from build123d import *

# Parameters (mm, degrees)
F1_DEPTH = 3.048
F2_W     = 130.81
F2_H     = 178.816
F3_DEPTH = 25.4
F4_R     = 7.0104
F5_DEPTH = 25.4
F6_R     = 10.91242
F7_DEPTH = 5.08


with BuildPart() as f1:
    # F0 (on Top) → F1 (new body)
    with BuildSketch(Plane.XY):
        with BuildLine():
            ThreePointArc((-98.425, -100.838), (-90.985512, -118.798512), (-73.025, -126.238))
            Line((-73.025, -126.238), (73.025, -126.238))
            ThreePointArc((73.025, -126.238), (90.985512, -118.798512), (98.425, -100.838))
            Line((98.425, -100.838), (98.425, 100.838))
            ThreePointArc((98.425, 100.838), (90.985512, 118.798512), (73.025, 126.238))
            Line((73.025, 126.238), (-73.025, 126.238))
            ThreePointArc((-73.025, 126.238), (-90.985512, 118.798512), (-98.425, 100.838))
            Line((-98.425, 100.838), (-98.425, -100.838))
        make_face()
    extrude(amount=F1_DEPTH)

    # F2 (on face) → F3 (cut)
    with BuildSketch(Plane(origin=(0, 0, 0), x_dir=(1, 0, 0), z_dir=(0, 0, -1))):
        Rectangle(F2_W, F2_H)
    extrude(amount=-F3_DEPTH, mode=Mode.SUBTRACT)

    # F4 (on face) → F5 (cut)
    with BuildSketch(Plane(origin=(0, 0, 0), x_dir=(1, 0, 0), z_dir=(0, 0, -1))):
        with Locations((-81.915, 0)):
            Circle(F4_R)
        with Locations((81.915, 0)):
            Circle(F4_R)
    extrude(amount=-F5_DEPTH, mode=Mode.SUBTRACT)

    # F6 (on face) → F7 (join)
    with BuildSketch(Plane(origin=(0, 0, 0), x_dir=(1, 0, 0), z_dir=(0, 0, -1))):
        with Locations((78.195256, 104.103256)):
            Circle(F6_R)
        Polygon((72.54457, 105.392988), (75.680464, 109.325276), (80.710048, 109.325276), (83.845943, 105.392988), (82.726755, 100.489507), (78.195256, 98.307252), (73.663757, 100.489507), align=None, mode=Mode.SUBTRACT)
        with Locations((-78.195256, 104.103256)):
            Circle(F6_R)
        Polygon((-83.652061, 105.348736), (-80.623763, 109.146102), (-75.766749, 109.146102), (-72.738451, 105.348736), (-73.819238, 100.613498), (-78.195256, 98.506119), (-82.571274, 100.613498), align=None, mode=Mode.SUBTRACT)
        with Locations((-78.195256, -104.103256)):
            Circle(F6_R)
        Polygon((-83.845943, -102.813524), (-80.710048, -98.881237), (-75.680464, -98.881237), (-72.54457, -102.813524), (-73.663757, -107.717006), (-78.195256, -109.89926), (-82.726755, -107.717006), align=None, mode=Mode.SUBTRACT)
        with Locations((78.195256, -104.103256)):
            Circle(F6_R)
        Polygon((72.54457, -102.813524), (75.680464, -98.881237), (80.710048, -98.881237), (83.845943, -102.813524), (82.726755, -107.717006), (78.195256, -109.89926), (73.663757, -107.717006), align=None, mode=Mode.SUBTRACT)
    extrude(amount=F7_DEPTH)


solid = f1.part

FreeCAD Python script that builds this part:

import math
import FreeCAD as App
import Part
import Sketcher
from FreeCAD import Vector
Q = App.Units.Quantity


def add_polygon(sketch, points):
    """Adds a closed chain of lines whose ends are joined by coincident constraints."""
    first, n = sketch.GeometryCount, len(points)
    for a, b in zip(points, points[1:] + points[:1]):
        sketch.addGeometry(Part.LineSegment(App.Vector(*a, 0), App.Vector(*b, 0)), False)
    for i in range(n):
        sketch.addConstraint(Sketcher.Constraint("Coincident", first + i, 2, first + (i + 1) % n, 1))

doc = App.newDocument("Part")
params = doc.addObject("Spreadsheet::Sheet", "Params")
for row, (alias, value) in enumerate([
    ("sketch1_radius", "1 in"),
    ("sketch1_width", "5.75 in"),
    ("sketch1_height", "7.94 in"),
    ("pad1_length", "0.12 in"),
    ("sketch2_width", "5.15 in"),
    ("sketch2_height", "7.04 in"),
    ("pocket1_length", "1 in"),
    ("sketch3_diameter", "0.552 in"),
    ("pocket2_length", "1 in"),
    ("pad2_length", "0.2 in"),
], start=1):
    params.set(f"A{row}", alias)
    params.set(f"B{row}", "=" + value)
    params.setAlias(f"B{row}", alias)

body = doc.addObject("PartDesign::Body", "Body")

sketch1 = body.newObject("Sketcher::SketchObject", "Sketch")
sketch1.AttachmentSupport = (doc.getObject("XY_Plane"), [""])
sketch1.MapMode = "FlatFace"
sketch1.addGeometry(Part.ArcOfCircle(Part.Circle(Vector(-73, -101, 0), Vector(0, 0, 1), 25), math.radians(-180), math.radians(-90)), False)
sketch1.addGeometry(Part.LineSegment(Vector(-73, -126, 0), Vector(73, -126, 0)), False)
sketch1.addGeometry(Part.ArcOfCircle(Part.Circle(Vector(73, -101, 0), Vector(0, 0, 1), 25), math.radians(-90), math.radians(0)), False)
sketch1.addGeometry(Part.LineSegment(Vector(98, -101, 0), Vector(98, 101, 0)), False)
sketch1.addGeometry(Part.ArcOfCircle(Part.Circle(Vector(73, 101, 0), Vector(0, 0, 1), 25), math.radians(0), math.radians(90)), False)
sketch1.addGeometry(Part.LineSegment(Vector(73, 126, 0), Vector(-73, 126, 0)), False)
sketch1.addGeometry(Part.ArcOfCircle(Part.Circle(Vector(-73, 101, 0), Vector(0, 0, 1), 25), math.radians(90), math.radians(180)), False)
sketch1.addGeometry(Part.LineSegment(Vector(-98, 101, 0), Vector(-98, -101, 0)), False)
sketch1.addConstraint(Sketcher.Constraint("Tangent", 0, 2, 1, 1))
sketch1.addConstraint(Sketcher.Constraint("Tangent", 1, 2, 2, 1))
sketch1.addConstraint(Sketcher.Constraint("Tangent", 2, 2, 3, 1))
sketch1.addConstraint(Sketcher.Constraint("Tangent", 3, 2, 4, 1))
sketch1.addConstraint(Sketcher.Constraint("Tangent", 4, 2, 5, 1))
sketch1.addConstraint(Sketcher.Constraint("Tangent", 5, 2, 6, 1))
sketch1.addConstraint(Sketcher.Constraint("Tangent", 6, 2, 7, 1))
sketch1.addConstraint(Sketcher.Constraint("Tangent", 7, 2, 0, 1))
sketch1.addConstraint(Sketcher.Constraint("Horizontal", 1))
sketch1.addConstraint(Sketcher.Constraint("Vertical", 3))
sketch1.addConstraint(Sketcher.Constraint("Horizontal", 5))
sketch1.addConstraint(Sketcher.Constraint("Vertical", 7))
sketch1.addConstraint(Sketcher.Constraint("Equal", 0, 2))
sketch1.addConstraint(Sketcher.Constraint("Equal", 2, 4))
sketch1.addConstraint(Sketcher.Constraint("Equal", 4, 6))
sketch1.addConstraint(Sketcher.Constraint("Symmetric", 0, 3, 4, 3, -1, 1))
sketch1.addConstraint(Sketcher.Constraint("Radius", 0, Q("1 in")))
sketch1.addConstraint(Sketcher.Constraint("DistanceX", 1, 1, 1, 2, Q("5.75 in")))
sketch1.addConstraint(Sketcher.Constraint("DistanceY", 3, 1, 3, 2, Q("7.94 in")))
sketch1.setExpression("Constraints[16]", "Params.sketch1_radius")
sketch1.setExpression("Constraints[17]", "Params.sketch1_width")
sketch1.setExpression("Constraints[18]", "Params.sketch1_height")
pad1 = body.newObject("PartDesign::Pad", "Pad")
pad1.Profile = sketch1
pad1.setExpression("Length", "Params.pad1_length")

sketch2 = body.newObject("Sketcher::SketchObject", "Sketch001")
sketch2.AttachmentSupport = (doc.getObject("XY_Plane"), [""])
sketch2.MapMode = "FlatFace"
add_polygon(sketch2, [(-65, -89), (-65, 89), (65, 89), (65, -89)])
sketch2.addConstraint(Sketcher.Constraint("Vertical", 0))
sketch2.addConstraint(Sketcher.Constraint("Horizontal", 1))
sketch2.addConstraint(Sketcher.Constraint("Vertical", 2))
sketch2.addConstraint(Sketcher.Constraint("Horizontal", 3))
sketch2.addConstraint(Sketcher.Constraint("Symmetric", 0, 2, 2, 2, -1, 1))
sketch2.addConstraint(Sketcher.Constraint("DistanceX", 1, 1, 1, 2, Q("5.15 in")))
sketch2.addConstraint(Sketcher.Constraint("DistanceY", 0, 1, 0, 2, Q("7.04 in")))
sketch2.setExpression("Constraints[9]", "Params.sketch2_width")
sketch2.setExpression("Constraints[10]", "Params.sketch2_height")
pocket1 = body.newObject("PartDesign::Pocket", "Pocket")
pocket1.Profile = sketch2
pocket1.setExpression("Length", "Params.pocket1_length")
pocket1.Reversed = True

sketch3 = body.newObject("Sketcher::SketchObject", "Sketch002")
sketch3.AttachmentSupport = (doc.getObject("XY_Plane"), [""])
sketch3.MapMode = "FlatFace"
sketch3.addGeometry(Part.Circle(Vector(-82, 0, 0), Vector(0, 0, 1), 7), False)
sketch3.addGeometry(Part.Circle(Vector(82, 0, 0), Vector(0, 0, 1), 7), False)
sketch3.addConstraint(Sketcher.Constraint("Equal", 0, 1))
sketch3.addConstraint(Sketcher.Constraint("Symmetric", 0, 3, 1, 3, -1, 1))
sketch3.addConstraint(Sketcher.Constraint("PointOnObject", 0, 3, -1))
sketch3.addConstraint(Sketcher.Constraint("Diameter", 0, Q("0.552 in")))
sketch3.addConstraint(Sketcher.Constraint("DistanceX", 0, 3, 1, 3, Q("6.45 in")))
sketch3.setExpression("Constraints[3]", "Params.sketch3_diameter")
pocket2 = body.newObject("PartDesign::Pocket", "Pocket001")
pocket2.Profile = sketch3
pocket2.setExpression("Length", "Params.pocket2_length")
pocket2.Reversed = True

sketch4 = body.newObject("Sketcher::SketchObject", "Sketch003")
sketch4.AttachmentSupport = (doc.getObject("XY_Plane"), [""])
sketch4.MapMode = "FlatFace"
sketch4.addGeometry(Part.Circle(Vector(78.2, -104.1, 0), Vector(0, 0, 1), 10.9), False)
add_polygon(sketch4, [(73.7, -100.5), (72.5, -105.4), (75.7, -109.3), (80.7, -109.3), (83.8, -105.4), (82.7, -100.5), (78.2, -98.3)])
sketch4.addGeometry(Part.Circle(Vector(-78.2, -104.1, 0), Vector(0, 0, 1), 10.9), False)
add_polygon(sketch4, [(-82.6, -100.6), (-83.7, -105.3), (-80.6, -109.1), (-75.8, -109.1), (-72.7, -105.3), (-73.8, -100.6), (-78.2, -98.5)])
sketch4.addGeometry(Part.Circle(Vector(-78.2, 104.1, 0), Vector(0, 0, 1), 10.9), False)
add_polygon(sketch4, [(-82.7, 107.7), (-83.8, 102.8), (-80.7, 98.9), (-75.7, 98.9), (-72.5, 102.8), (-73.7, 107.7), (-78.2, 109.9)])
sketch4.addGeometry(Part.Circle(Vector(78.2, 104.1, 0), Vector(0, 0, 1), 10.9), False)
add_polygon(sketch4, [(73.7, 107.7), (72.5, 102.8), (75.7, 98.9), (80.7, 98.9), (83.8, 102.8), (82.7, 107.7), (78.2, 109.9)])
sketch4.addConstraint(Sketcher.Constraint("Horizontal", 3))
sketch4.addConstraint(Sketcher.Constraint("Horizontal", 11))
sketch4.addConstraint(Sketcher.Constraint("Horizontal", 19))
sketch4.addConstraint(Sketcher.Constraint("Horizontal", 27))
sketch4.addConstraint(Sketcher.Constraint("Equal", 0, 8))
sketch4.addConstraint(Sketcher.Constraint("Equal", 8, 16))
sketch4.addConstraint(Sketcher.Constraint("Equal", 16, 24))
sketch4.addConstraint(Sketcher.Constraint("Symmetric", 0, 3, 16, 3, -1, 1))
sketch4.addConstraint(Sketcher.Constraint("Symmetric", 8, 3, 24, 3, -1, 1))
sketch4.addConstraint(Sketcher.Constraint("Symmetric", 0, 3, 8, 3, -2))
sketch4.addConstraint(Sketcher.Constraint("Symmetric", 20, 2, 25, 2, -2))
sketch4.addConstraint(Sketcher.Constraint("Symmetric", 19, 2, 26, 2, -2))
sketch4.addConstraint(Sketcher.Constraint("Symmetric", 17, 2, 28, 2, -2))
sketch4.addConstraint(Sketcher.Constraint("Symmetric", 23, 2, 29, 2, -2))
sketch4.addConstraint(Sketcher.Constraint("Symmetric", 22, 2, 30, 2, -2))
sketch4.addConstraint(Sketcher.Constraint("Symmetric", 21, 2, 31, 2, -2))
sketch4.addConstraint(Sketcher.Constraint("Parallel", 1, 9))
sketch4.addConstraint(Sketcher.Constraint("Parallel", 2, 10))
sketch4.addConstraint(Sketcher.Constraint("Parallel", 4, 12))
sketch4.addConstraint(Sketcher.Constraint("Parallel", 5, 13))
sketch4.addConstraint(Sketcher.Constraint("Parallel", 6, 14))
sketch4.addConstraint(Sketcher.Constraint("Parallel", 7, 15))
sketch4.addConstraint(Sketcher.Constraint("Parallel", 9, 17))
sketch4.addConstraint(Sketcher.Constraint("Parallel", 10, 18))
sketch4.addConstraint(Sketcher.Constraint("Parallel", 12, 20))
sketch4.addConstraint(Sketcher.Constraint("Parallel", 13, 21))
sketch4.addConstraint(Sketcher.Constraint("Parallel", 14, 22))
sketch4.addConstraint(Sketcher.Constraint("Parallel", 15, 23))
sketch4.addConstraint(Sketcher.Constraint("Parallel", 17, 25))
sketch4.addConstraint(Sketcher.Constraint("Parallel", 18, 26))
sketch4.addConstraint(Sketcher.Constraint("Parallel", 20, 28))
sketch4.addConstraint(Sketcher.Constraint("Parallel", 22, 30))
sketch4.addConstraint(Sketcher.Constraint("Horizontal", 1, 2, 4, 2))
sketch4.addConstraint(Sketcher.Constraint("Horizontal", 5, 2, 7, 2))
sketch4.addConstraint(Sketcher.Constraint("Horizontal", 9, 2, 12, 2))
sketch4.addConstraint(Sketcher.Constraint("Horizontal", 13, 2, 15, 2))
sketch4.addConstraint(Sketcher.Constraint("Horizontal", 17, 2, 20, 2))
sketch4.addConstraint(Sketcher.Constraint("Horizontal", 21, 2, 23, 2))
sketch4.addConstraint(Sketcher.Constraint("Vertical", 24, 3, 6, 2))
sketch4.addConstraint(Sketcher.Constraint("Vertical", 16, 3, 14, 2))
sketch4.addConstraint(Sketcher.Constraint("Vertical", 14, 2, 22, 2))
sketch4.addConstraint(Sketcher.Constraint("Vertical", 1, 2, 25, 2))
sketch4.addConstraint(Sketcher.Constraint("Vertical", 2, 2, 26, 2))
sketch4.addConstraint(Sketcher.Constraint("Vertical", 5, 2, 29, 2))
sketch4.addConstraint(Sketcher.Constraint("Equal", 1, 2))
sketch4.addConstraint(Sketcher.Constraint("Equal", 5, 6))
sketch4.addConstraint(Sketcher.Constraint("Equal", 9, 10))
sketch4.addConstraint(Sketcher.Constraint("Equal", 13, 14))
sketch4.addConstraint(Sketcher.Constraint("Diameter", 0, Q("21.82484 mm")))
sketch4.addConstraint(Sketcher.Constraint("DistanceY", 10, 2, -1, 1, Q("109.146102 mm")))
sketch4.addConstraint(Sketcher.Constraint("DistanceY", 13, 2, -1, 1, Q("100.613498 mm")))
sketch4.addConstraint(Sketcher.Constraint("DistanceX", 8, 3, 4, 2, Q("162.041199 mm")))
sketch4.addConstraint(Sketcher.Constraint("DistanceX", 0, 3, 5, 2, Q("4.531499 mm")))
sketch4.addConstraint(Sketcher.Constraint("DistanceX", 9, 2, 10, 2, Q("3.028298 mm")))
sketch4.addConstraint(Sketcher.Constraint("DistanceX", 3, 1, 3, 2, Q("5.029584 mm")))
sketch4.addConstraint(Sketcher.Constraint("DistanceX", 11, 1, 11, 2, Q("4.857014 mm")))
sketch4.addConstraint(Sketcher.Constraint("DistanceY", 1, 2, -1, 1, Q("105.392988 mm")))
sketch4.addConstraint(Sketcher.Constraint("DistanceY", -1, 1, 22, 2, Q("109.89926 mm")))
sketch4.addConstraint(Sketcher.Constraint("DistanceY", 8, 3, 16, 3, Q("208.206512 mm")))
pad2 = body.newObject("PartDesign::Pad", "Pad001")
pad2.Profile = sketch4
pad2.setExpression("Length", "Params.pad2_length")
pad2.Reversed = True

doc.recompute()
